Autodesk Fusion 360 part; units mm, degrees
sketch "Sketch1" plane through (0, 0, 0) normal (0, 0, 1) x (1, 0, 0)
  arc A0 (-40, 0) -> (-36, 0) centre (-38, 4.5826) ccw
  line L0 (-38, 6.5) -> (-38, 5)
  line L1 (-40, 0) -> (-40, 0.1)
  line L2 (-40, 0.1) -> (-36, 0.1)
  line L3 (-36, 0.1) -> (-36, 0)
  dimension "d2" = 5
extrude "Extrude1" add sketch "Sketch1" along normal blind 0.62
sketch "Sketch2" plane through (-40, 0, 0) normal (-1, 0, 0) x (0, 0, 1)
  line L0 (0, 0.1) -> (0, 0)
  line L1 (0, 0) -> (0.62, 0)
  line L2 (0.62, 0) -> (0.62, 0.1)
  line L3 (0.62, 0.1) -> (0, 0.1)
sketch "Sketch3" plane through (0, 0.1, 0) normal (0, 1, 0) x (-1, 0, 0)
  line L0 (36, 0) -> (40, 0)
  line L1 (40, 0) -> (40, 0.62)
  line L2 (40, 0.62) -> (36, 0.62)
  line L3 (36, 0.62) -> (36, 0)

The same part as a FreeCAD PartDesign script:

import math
import FreeCAD as App
import Part
import Sketcher
from FreeCAD import Vector

doc = App.newDocument("Part")
body = doc.addObject("PartDesign::Body", "Body")

# Sketch on XY plane
sketch1 = doc.addObject("Sketcher::SketchObject", "Sketch")
body.addObject(sketch1)
sketch1.AttachmentSupport = (doc.XY_Plane, [""])
sketch1.MapMode = "FlatFace"
sketch1.addGeometry([
    Part.LineSegment(Vector(-40, 0.1, 0), Vector(-40, 0, 0)),
    Part.ArcOfCircle(Part.Circle(Vector(-38, 4.58, 0), Vector(0, 0, 1), 5), math.radians(-114), math.radians(-66)),
    Part.LineSegment(Vector(-36, 0, 0), Vector(-36, 0.1, 0)),
    Part.LineSegment(Vector(-36, 0.1, 0), Vector(-40, 0.1, 0)),
], False)
sketch1.addConstraint([
    Sketcher.Constraint("Coincident", 0, 2, 1, 1),
    Sketcher.Constraint("Coincident", 1, 2, 2, 1),
    Sketcher.Constraint("Coincident", 2, 2, 3, 1),
    Sketcher.Constraint("Coincident", 3, 2, 0, 1),
    Sketcher.Constraint("Vertical", 0),
    Sketcher.Constraint("Vertical", 2),
    Sketcher.Constraint("Horizontal", 3),
    Sketcher.Constraint("PointOnObject", 0, 2, -1),
    Sketcher.Constraint("PointOnObject", 1, 2, -1),
    Sketcher.Constraint("Radius", 1, 5.0),
    Sketcher.Constraint("DistanceX", 3, 2, 3, 1, 4.0),
    Sketcher.Constraint("DistanceY", 0, 2, 0, 1, 0.1),
    Sketcher.Constraint("DistanceX", 1, 3, -1, 1, 38.0),
])
pad1 = doc.addObject("PartDesign::Pad", "Pad")
body.addObject(pad1)
pad1.Profile = sketch1
pad1.Length = 0.62

doc.recompute()
